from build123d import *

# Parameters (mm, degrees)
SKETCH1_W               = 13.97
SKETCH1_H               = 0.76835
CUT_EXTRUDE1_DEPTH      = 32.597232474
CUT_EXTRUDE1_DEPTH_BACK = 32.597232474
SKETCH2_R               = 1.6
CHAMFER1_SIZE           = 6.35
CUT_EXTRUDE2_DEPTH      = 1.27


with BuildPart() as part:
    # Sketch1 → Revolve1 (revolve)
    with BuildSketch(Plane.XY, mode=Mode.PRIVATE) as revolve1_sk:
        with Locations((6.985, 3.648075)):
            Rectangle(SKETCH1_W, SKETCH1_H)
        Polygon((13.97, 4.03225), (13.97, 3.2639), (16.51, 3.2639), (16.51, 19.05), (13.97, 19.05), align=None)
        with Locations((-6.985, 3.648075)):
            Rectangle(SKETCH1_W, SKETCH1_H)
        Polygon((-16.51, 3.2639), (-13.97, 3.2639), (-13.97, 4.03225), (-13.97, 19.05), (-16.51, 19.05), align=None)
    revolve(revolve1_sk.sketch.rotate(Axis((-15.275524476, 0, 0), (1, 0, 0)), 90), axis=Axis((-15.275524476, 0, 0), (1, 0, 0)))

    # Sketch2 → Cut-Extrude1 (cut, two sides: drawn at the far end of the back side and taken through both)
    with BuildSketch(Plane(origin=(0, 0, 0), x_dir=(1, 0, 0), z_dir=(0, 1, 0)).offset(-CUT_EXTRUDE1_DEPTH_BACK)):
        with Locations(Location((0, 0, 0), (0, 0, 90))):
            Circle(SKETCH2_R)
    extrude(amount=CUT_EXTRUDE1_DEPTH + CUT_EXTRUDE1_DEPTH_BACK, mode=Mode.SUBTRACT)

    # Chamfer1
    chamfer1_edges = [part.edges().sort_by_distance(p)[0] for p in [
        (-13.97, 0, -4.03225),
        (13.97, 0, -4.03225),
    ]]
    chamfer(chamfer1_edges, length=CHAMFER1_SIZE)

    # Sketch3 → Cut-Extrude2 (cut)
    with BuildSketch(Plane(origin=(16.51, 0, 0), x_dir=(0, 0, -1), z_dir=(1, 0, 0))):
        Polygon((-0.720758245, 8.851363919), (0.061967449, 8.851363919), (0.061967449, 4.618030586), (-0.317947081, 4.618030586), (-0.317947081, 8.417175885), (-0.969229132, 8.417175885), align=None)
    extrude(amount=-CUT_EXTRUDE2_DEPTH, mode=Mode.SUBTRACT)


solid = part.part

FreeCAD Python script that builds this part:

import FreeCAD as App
import Part
import Sketcher

V = App.Vector
Q = App.Units.Quantity


def edges_at(feature, points):
    """Names of the edges that pass closest to the given points."""
    edges = feature.Shape.Edges
    near = lambda p: min(range(len(edges)), key=lambda i: edges[i].distToShape(Part.Vertex(*p))[0])
    return sorted({f"Edge{near(p) + 1}" for p in points})

doc = App.newDocument("Part")
body = doc.addObject("PartDesign::Body", "Body")

sketch1 = body.newObject("Sketcher::SketchObject", "Sketch")
sketch1.AttachmentSupport = (doc.getObject("XY_Plane"), [""])
sketch1.MapMode = "FlatFace"
sketch1.addGeometry(Part.LineSegment(V(16.51, 3.2639, 0), V(16.51, 19.05, 0)), False)
sketch1.addGeometry(Part.LineSegment(V(16.51, 19.05, 0), V(13.97, 19.05, 0)), False)
sketch1.addGeometry(Part.LineSegment(V(13.97, 19.05, 0), V(13.97, 4.03225, 0)), False)
sketch1.addGeometry(Part.LineSegment(V(13.97, 4.03225, 0), V(-13.97, 4.03225, 0)), False)
sketch1.addGeometry(Part.LineSegment(V(-13.97, 4.03225, 0), V(-13.97, 19.05, 0)), False)
sketch1.addGeometry(Part.LineSegment(V(-13.97, 19.05, 0), V(-16.51, 19.05, 0)), False)
sketch1.addGeometry(Part.LineSegment(V(-16.51, 19.05, 0), V(-16.51, 3.2639, 0)), False)
sketch1.addGeometry(Part.LineSegment(V(-16.51, 3.2639, 0), V(16.51, 3.2639, 0)), False)
sketch1.addConstraint(Sketcher.Constraint("Coincident", 0, 2, 1, 1))
sketch1.addConstraint(Sketcher.Constraint("Coincident", 1, 2, 2, 1))
sketch1.addConstraint(Sketcher.Constraint("Coincident", 2, 2, 3, 1))
sketch1.addConstraint(Sketcher.Constraint("Coincident", 3, 2, 4, 1))
sketch1.addConstraint(Sketcher.Constraint("Coincident", 4, 2, 5, 1))
sketch1.addConstraint(Sketcher.Constraint("Coincident", 5, 2, 6, 1))
sketch1.addConstraint(Sketcher.Constraint("Coincident", 6, 2, 7, 1))
sketch1.addConstraint(Sketcher.Constraint("Coincident", 7, 2, 0, 1))
sketch1.addConstraint(Sketcher.Constraint("Vertical", 0))
sketch1.addConstraint(Sketcher.Constraint("Horizontal", 1))
sketch1.addConstraint(Sketcher.Constraint("Vertical", 2))
sketch1.addConstraint(Sketcher.Constraint("Horizontal", 3))
sketch1.addConstraint(Sketcher.Constraint("Vertical", 4))
sketch1.addConstraint(Sketcher.Constraint("Horizontal", 5))
sketch1.addConstraint(Sketcher.Constraint("Vertical", 6))
sketch1.addConstraint(Sketcher.Constraint("Horizontal", 7))
sketch1.addConstraint(Sketcher.Constraint("Symmetric", 1, 2, 4, 2, -2))
sketch1.addConstraint(Sketcher.Constraint("Equal", 1, 5))
sketch1.addConstraint(Sketcher.Constraint("DistanceX", 1, 2, 1, 1, Q("0.1 in")))
sketch1.addConstraint(Sketcher.Constraint("DistanceX", 3, 2, 3, 1, Q("1.1 in")))
sketch1.addConstraint(Sketcher.Constraint("DistanceY", -1, 1, 0, 2, Q("0.75 in")))
sketch1.addConstraint(Sketcher.Constraint("DistanceY", 0, 1, 0, 2, Q("0.6215 in")))
sketch1.addConstraint(Sketcher.Constraint("DistanceY", 2, 2, 2, 1, 15.01775))
revolution = body.newObject("PartDesign::Revolution", "Revolution")
revolution.Profile = sketch1
revolution.ReferenceAxis = (sketch1, ["H_Axis"])
revolution.Angle = 360

sketch2 = body.newObject("Sketcher::SketchObject", "Sketch001")
sketch2.AttachmentSupport = (doc.getObject("XZ_Plane"), [""])
sketch2.MapMode = "FlatFace"
sketch2.addGeometry(Part.Circle(V(0, 0, 0), V(0, 0, 1), 1.6), False)
sketch2.addConstraint(Sketcher.Constraint("Coincident", 0, 3, -1, 1))
sketch2.addConstraint(Sketcher.Constraint("Diameter", 0, 3.2))
pocket1 = body.newObject("PartDesign::Pocket", "Pocket")
pocket1.Profile = sketch2
pocket1.Type = "ThroughAll"
pocket1.Midplane = True
doc.recompute()

chamfer = body.newObject("PartDesign::Chamfer", "Chamfer")
chamfer.Base = (pocket1, edges_at(pocket1, [(-13.97, 0, -4.032), (13.97, 0, -4.032)]))
chamfer.Size = Q("0.25 in")

sketch3 = body.newObject("Sketcher::SketchObject", "Sketch002")
sketch3.AttachmentSupport = (doc.getObject("YZ_Plane"), [""])
sketch3.MapMode = "FlatFace"
sketch3.AttachmentOffset = App.Placement(V(0, 0, 0.65 * 25.4), App.Rotation())
sketch3.addGeometry(Part.LineSegment(V(8.851364, -0.061967, 0), V(8.851364, 0.720758, 0)), False)
sketch3.addGeometry(Part.LineSegment(V(8.851364, 0.720758, 0), V(8.417176, 0.969229, 0)), False)
sketch3.addGeometry(Part.LineSegment(V(8.417176, 0.969229, 0), V(8.417176, 0.317947, 0)), False)
sketch3.addGeometry(Part.LineSegment(V(8.417176, 0.317947, 0), V(4.618031, 0.317947, 0)), False)
sketch3.addGeometry(Part.LineSegment(V(4.618031, 0.317947, 0), V(4.618031, -0.061967, 0)), False)
sketch3.addGeometry(Part.LineSegment(V(4.618031, -0.061967, 0), V(8.851364, -0.061967, 0)), False)
sketch3.addConstraint(Sketcher.Constraint("Coincident", 0, 2, 1, 1))
sketch3.addConstraint(Sketcher.Constraint("Coincident", 1, 2, 2, 1))
sketch3.addConstraint(Sketcher.Constraint("Coincident", 2, 2, 3, 1))
sketch3.addConstraint(Sketcher.Constraint("Coincident", 3, 2, 4, 1))
sketch3.addConstraint(Sketcher.Constraint("Coincident", 4, 2, 5, 1))
sketch3.addConstraint(Sketcher.Constraint("Coincident", 5, 2, 0, 1))
sketch3.addConstraint(Sketcher.Constraint("Vertical", 0))
sketch3.addConstraint(Sketcher.Constraint("Vertical", 2))
sketch3.addConstraint(Sketcher.Constraint("Horizontal", 3))
sketch3.addConstraint(Sketcher.Constraint("Vertical", 4))
sketch3.addConstraint(Sketcher.Constraint("Horizontal", 5))
sketch3.addConstraint(Sketcher.Constraint("DistanceX", 3, 2, 3, 1, 3.799145))
sketch3.addConstraint(Sketcher.Constraint("DistanceX", 5, 1, 5, 2, 4.233333))
sketch3.addConstraint(Sketcher.Constraint("DistanceY", 0, 1, 0, 2, 0.782726))
sketch3.addConstraint(Sketcher.Constraint("DistanceY", 2, 2, 2, 1, 0.651282))
sketch3.addConstraint(Sketcher.Constraint("DistanceY", 4, 2, 4, 1, 0.379915))
sketch3.addConstraint(Sketcher.Constraint("DistanceY", -1, 1, 0, 2, 0.720758))
sketch3.addConstraint(Sketcher.Constraint("DistanceX", -1, 1, 3, 2, 4.618031))
pocket2 = body.newObject("PartDesign::Pocket", "Pocket001")
pocket2.Profile = sketch3
pocket2.Length = Q("0.05 in")

doc.recompute()
